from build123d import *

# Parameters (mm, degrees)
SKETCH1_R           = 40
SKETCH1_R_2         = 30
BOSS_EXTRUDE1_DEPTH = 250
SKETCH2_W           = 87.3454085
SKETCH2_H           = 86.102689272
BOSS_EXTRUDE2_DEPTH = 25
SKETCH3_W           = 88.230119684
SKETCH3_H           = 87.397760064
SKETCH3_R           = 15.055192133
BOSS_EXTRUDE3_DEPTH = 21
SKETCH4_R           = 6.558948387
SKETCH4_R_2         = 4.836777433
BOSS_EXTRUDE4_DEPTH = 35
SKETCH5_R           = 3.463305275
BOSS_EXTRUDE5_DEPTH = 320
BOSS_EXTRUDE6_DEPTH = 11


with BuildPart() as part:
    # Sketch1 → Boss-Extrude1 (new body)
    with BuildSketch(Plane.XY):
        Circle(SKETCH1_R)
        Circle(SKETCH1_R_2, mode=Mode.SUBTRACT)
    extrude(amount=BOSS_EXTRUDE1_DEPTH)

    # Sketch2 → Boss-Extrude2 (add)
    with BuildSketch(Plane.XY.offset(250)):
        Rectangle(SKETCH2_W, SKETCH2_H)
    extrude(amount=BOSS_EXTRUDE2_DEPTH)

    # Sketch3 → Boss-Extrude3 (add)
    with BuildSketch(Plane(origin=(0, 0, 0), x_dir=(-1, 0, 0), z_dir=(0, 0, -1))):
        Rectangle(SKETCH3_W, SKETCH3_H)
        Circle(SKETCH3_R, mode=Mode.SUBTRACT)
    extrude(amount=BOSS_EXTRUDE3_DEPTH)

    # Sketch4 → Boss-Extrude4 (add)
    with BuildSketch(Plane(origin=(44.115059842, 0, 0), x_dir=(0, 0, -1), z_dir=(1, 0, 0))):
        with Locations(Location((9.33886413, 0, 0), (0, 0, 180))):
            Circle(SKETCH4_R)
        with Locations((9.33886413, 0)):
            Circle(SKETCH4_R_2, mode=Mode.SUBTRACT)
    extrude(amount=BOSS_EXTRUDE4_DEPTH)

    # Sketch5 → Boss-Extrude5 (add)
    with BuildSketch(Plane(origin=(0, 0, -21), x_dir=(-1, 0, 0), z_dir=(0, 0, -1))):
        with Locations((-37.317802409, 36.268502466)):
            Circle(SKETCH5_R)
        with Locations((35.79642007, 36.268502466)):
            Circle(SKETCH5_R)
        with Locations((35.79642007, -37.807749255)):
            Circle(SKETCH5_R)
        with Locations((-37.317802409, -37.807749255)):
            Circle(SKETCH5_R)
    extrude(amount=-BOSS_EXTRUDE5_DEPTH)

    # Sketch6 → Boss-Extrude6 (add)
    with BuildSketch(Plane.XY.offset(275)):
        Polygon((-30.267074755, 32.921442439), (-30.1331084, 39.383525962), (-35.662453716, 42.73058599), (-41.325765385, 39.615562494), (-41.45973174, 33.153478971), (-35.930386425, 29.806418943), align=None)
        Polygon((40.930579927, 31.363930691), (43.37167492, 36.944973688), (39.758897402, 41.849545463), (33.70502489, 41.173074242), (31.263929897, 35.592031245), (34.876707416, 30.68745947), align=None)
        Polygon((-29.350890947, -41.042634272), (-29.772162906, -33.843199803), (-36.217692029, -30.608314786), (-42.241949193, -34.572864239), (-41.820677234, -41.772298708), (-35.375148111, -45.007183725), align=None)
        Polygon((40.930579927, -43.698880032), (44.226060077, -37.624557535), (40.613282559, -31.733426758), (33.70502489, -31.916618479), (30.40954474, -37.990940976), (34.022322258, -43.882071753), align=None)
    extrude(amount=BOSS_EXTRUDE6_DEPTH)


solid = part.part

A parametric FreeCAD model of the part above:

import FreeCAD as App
import Part
import Sketcher

V = App.Vector
Q = App.Units.Quantity

doc = App.newDocument("Part")
body = doc.addObject("PartDesign::Body", "Body")

# Sketch on XY plane
sketch1 = body.newObject("Sketcher::SketchObject", "Sketch")
sketch1.AttachmentSupport = (doc.getObject("XY_Plane"), [""])
sketch1.MapMode = "FlatFace"
sketch1.addGeometry(Part.Circle(V(0, 0, 0), V(0, 0, 1), 40), False)
sketch1.addGeometry(Part.Circle(V(0, 0, 0), V(0, 0, 1), 30), False)
sketch1.addConstraint(Sketcher.Constraint("Coincident", 0, 3, -1, 1))
sketch1.addConstraint(Sketcher.Constraint("Coincident", 1, 3, -1, 1))
sketch1.addConstraint(Sketcher.Constraint("Diameter", 0, Q("80 mm")))
sketch1.addConstraint(Sketcher.Constraint("Diameter", 1, Q("60 mm")))
pad1 = body.newObject("PartDesign::Pad", "Pad")
pad1.Profile = sketch1
pad1.Length = 250

# Sketch on XY plane
sketch2 = body.newObject("Sketcher::SketchObject", "Sketch001")
sketch2.AttachmentSupport = (doc.getObject("XY_Plane"), [""])
sketch2.MapMode = "FlatFace"
sketch2.AttachmentOffset = App.Placement(V(0, 0, 250), App.Rotation())
sketch2.addGeometry(Part.LineSegment(V(-44, 43, 0), V(-44, -43, 0)), False)
sketch2.addGeometry(Part.LineSegment(V(-44, -43, 0), V(44, -43, 0)), False)
sketch2.addGeometry(Part.LineSegment(V(44, -43, 0), V(44, 43, 0)), False)
sketch2.addGeometry(Part.LineSegment(V(44, 43, 0), V(-44, 43, 0)), False)
sketch2.addConstraint(Sketcher.Constraint("Coincident", 0, 2, 1, 1))
sketch2.addConstraint(Sketcher.Constraint("Coincident", 1, 2, 2, 1))
sketch2.addConstraint(Sketcher.Constraint("Coincident", 2, 2, 3, 1))
sketch2.addConstraint(Sketcher.Constraint("Coincident", 3, 2, 0, 1))
sketch2.addConstraint(Sketcher.Constraint("Vertical", 0))
sketch2.addConstraint(Sketcher.Constraint("Horizontal", 1))
sketch2.addConstraint(Sketcher.Constraint("Vertical", 2))
sketch2.addConstraint(Sketcher.Constraint("Horizontal", 3))
sketch2.addConstraint(Sketcher.Constraint("Symmetric", 0, 2, 2, 2, -1, 1))
sketch2.addConstraint(Sketcher.Constraint("DistanceX", 1, 1, 1, 2, Q("87.345409 mm")))
sketch2.addConstraint(Sketcher.Constraint("DistanceY", 0, 2, 0, 1, Q("86.102689 mm")))
pad2 = body.newObject("PartDesign::Pad", "Pad001")
pad2.Profile = sketch2
pad2.Length = 25

# Sketch on XY plane
sketch3 = body.newObject("Sketcher::SketchObject", "Sketch002")
sketch3.AttachmentSupport = (doc.getObject("XY_Plane"), [""])
sketch3.MapMode = "FlatFace"
sketch3.addGeometry(Part.LineSegment(V(44, 44, 0), V(44, -44, 0)), False)
sketch3.addGeometry(Part.LineSegment(V(44, -44, 0), V(-44, -44, 0)), False)
sketch3.addGeometry(Part.LineSegment(V(-44, -44, 0), V(-44, 44, 0)), False)
sketch3.addGeometry(Part.LineSegment(V(-44, 44, 0), V(44, 44, 0)), False)
sketch3.addGeometry(Part.Circle(V(0, 0, 0), V(0, 0, 1), 15), False)
sketch3.addConstraint(Sketcher.Constraint("Coincident", 0, 2, 1, 1))
sketch3.addConstraint(Sketcher.Constraint("Coincident", 1, 2, 2, 1))
sketch3.addConstraint(Sketcher.Constraint("Coincident", 2, 2, 3, 1))
sketch3.addConstraint(Sketcher.Constraint("Coincident", 3, 2, 0, 1))
sketch3.addConstraint(Sketcher.Constraint("Vertical", 0))
sketch3.addConstraint(Sketcher.Constraint("Horizontal", 1))
sketch3.addConstraint(Sketcher.Constraint("Vertical", 2))
sketch3.addConstraint(Sketcher.Constraint("Horizontal", 3))
sketch3.addConstraint(Sketcher.Constraint("Coincident", 4, 3, -1, 1))
sketch3.addConstraint(Sketcher.Constraint("Symmetric", 0, 2, 2, 2, -1, 1))
sketch3.addConstraint(Sketcher.Constraint("Diameter", 4, Q("30.110384 mm")))
sketch3.addConstraint(Sketcher.Constraint("DistanceX", 1, 2, 1, 1, Q("88.23012 mm")))
sketch3.addConstraint(Sketcher.Constraint("DistanceY", 0, 2, 0, 1, Q("87.39776 mm")))
pad3 = body.newObject("PartDesign::Pad", "Pad002")
pad3.Profile = sketch3
pad3.Length = 21
pad3.Reversed = True

# Sketch on YZ plane
sketch4 = body.newObject("Sketcher::SketchObject", "Sketch003")
sketch4.AttachmentSupport = (doc.getObject("YZ_Plane"), [""])
sketch4.MapMode = "FlatFace"
sketch4.AttachmentOffset = App.Placement(V(0, 0, 44.11506), App.Rotation())
sketch4.addGeometry(Part.Circle(V(0, -9.3, 0), V(0, 0, 1), 6.6), False)
sketch4.addGeometry(Part.Circle(V(0, -9.3, 0), V(0, 0, 1), 4.8), False)
sketch4.addConstraint(Sketcher.Constraint("Coincident", 1, 3, 0, 3))
sketch4.addConstraint(Sketcher.Constraint("PointOnObject", 0, 3, -2))
sketch4.addConstraint(Sketcher.Constraint("Diameter", 0, Q("13.117897 mm")))
sketch4.addConstraint(Sketcher.Constraint("Diameter", 1, Q("9.673555 mm")))
sketch4.addConstraint(Sketcher.Constraint("DistanceY", 0, 3, -1, 1, Q("9.338864 mm")))
pad4 = body.newObject("PartDesign::Pad", "Pad003")
pad4.Profile = sketch4
pad4.Length = 35

# Sketch on XY plane
sketch5 = body.newObject("Sketcher::SketchObject", "Sketch004")
sketch5.AttachmentSupport = (doc.getObject("XY_Plane"), [""])
sketch5.MapMode = "FlatFace"
sketch5.AttachmentOffset = App.Placement(V(0, 0, -21), App.Rotation())
sketch5.addGeometry(Part.Circle(V(37.3, 36.3, 0), V(0, 0, 1), 3.5), False)
sketch5.addGeometry(Part.Circle(V(-35.8, 36.3, 0), V(0, 0, 1), 3.5), False)
sketch5.addGeometry(Part.Circle(V(-35.8, -37.8, 0), V(0, 0, 1), 3.5), False)
sketch5.addGeometry(Part.Circle(V(37.3, -37.8, 0), V(0, 0, 1), 3.5), False)
sketch5.addConstraint(Sketcher.Constraint("Equal", 0, 1))
sketch5.addConstraint(Sketcher.Constraint("Equal", 1, 2))
sketch5.addConstraint(Sketcher.Constraint("Equal", 2, 3))
sketch5.addConstraint(Sketcher.Constraint("Horizontal", 0, 3, 1, 3))
sketch5.addConstraint(Sketcher.Constraint("Horizontal", 2, 3, 3, 3))
sketch5.addConstraint(Sketcher.Constraint("Vertical", 1, 3, 2, 3))
sketch5.addConstraint(Sketcher.Constraint("Vertical", 0, 3, 3, 3))
sketch5.addConstraint(Sketcher.Constraint("Diameter", 0, Q("6.926611 mm")))
sketch5.addConstraint(Sketcher.Constraint("DistanceX", 1, 3, -1, 1, Q("35.79642 mm")))
sketch5.addConstraint(Sketcher.Constraint("DistanceY", 2, 3, -1, 1, Q("37.807749 mm")))
sketch5.addConstraint(Sketcher.Constraint("DistanceY", 2, 3, 1, 3, Q("74.076252 mm")))
sketch5.addConstraint(Sketcher.Constraint("DistanceX", -1, 1, 0, 3, Q("37.317802 mm")))
pad5 = body.newObject("PartDesign::Pad", "Pad004")
pad5.Profile = sketch5
pad5.Length = 320

# Sketch on XY plane
sketch6 = body.newObject("Sketcher::SketchObject", "Sketch005")
sketch6.AttachmentSupport = (doc.getObject("XY_Plane"), [""])
sketch6.MapMode = "FlatFace"
sketch6.AttachmentOffset = App.Placement(V(0, 0, 275), App.Rotation())
sketch6.addGeometry(Part.LineSegment(V(-30, 33, 0), V(-30, 39, 0)), False)
sketch6.addGeometry(Part.LineSegment(V(-30, 39, 0), V(-36, 43, 0)), False)
sketch6.addGeometry(Part.LineSegment(V(-36, 43, 0), V(-41, 40, 0)), False)
sketch6.addGeometry(Part.LineSegment(V(-41, 40, 0), V(-41, 33, 0)), False)
sketch6.addGeometry(Part.LineSegment(V(-41, 33, 0), V(-36, 30, 0)), False)
sketch6.addGeometry(Part.LineSegment(V(-36, 30, 0), V(-30, 33, 0)), False)
sketch6.addGeometry(Part.LineSegment(V(41, 31, 0), V(43, 37, 0)), False)
sketch6.addGeometry(Part.LineSegment(V(43, 37, 0), V(40, 42, 0)), False)
sketch6.addGeometry(Part.LineSegment(V(40, 42, 0), V(34, 41, 0)), False)
sketch6.addGeometry(Part.LineSegment(V(34, 41, 0), V(31, 36, 0)), False)
sketch6.addGeometry(Part.LineSegment(V(31, 36, 0), V(35, 31, 0)), False)
sketch6.addGeometry(Part.LineSegment(V(35, 31, 0), V(41, 31, 0)), False)
sketch6.addGeometry(Part.LineSegment(V(-29, -41, 0), V(-30, -34, 0)), False)
sketch6.addGeometry(Part.LineSegment(V(-30, -34, 0), V(-36, -31, 0)), False)
sketch6.addGeometry(Part.LineSegment(V(-36, -31, 0), V(-42, -35, 0)), False)
sketch6.addGeometry(Part.LineSegment(V(-42, -35, 0), V(-42, -42, 0)), False)
sketch6.addGeometry(Part.LineSegment(V(-42, -42, 0), V(-35, -45, 0)), False)
sketch6.addGeometry(Part.LineSegment(V(-35, -45, 0), V(-29, -41, 0)), False)
sketch6.addGeometry(Part.LineSegment(V(41, -44, 0), V(44, -38, 0)), False)
sketch6.addGeometry(Part.LineSegment(V(44, -38, 0), V(41, -32, 0)), False)
sketch6.addGeometry(Part.LineSegment(V(41, -32, 0), V(34, -32, 0)), False)
sketch6.addGeometry(Part.LineSegment(V(34, -32, 0), V(30, -38, 0)), False)
sketch6.addGeometry(Part.LineSegment(V(30, -38, 0), V(34, -44, 0)), False)
sketch6.addGeometry(Part.LineSegment(V(34, -44, 0), V(41, -44, 0)), False)
sketch6.addConstraint(Sketcher.Constraint("Coincident", 0, 2, 1, 1))
sketch6.addConstraint(Sketcher.Constraint("Coincident", 1, 2, 2, 1))
sketch6.addConstraint(Sketcher.Constraint("Coincident", 2, 2, 3, 1))
sketch6.addConstraint(Sketcher.Constraint("Coincident", 3, 2, 4, 1))
sketch6.addConstraint(Sketcher.Constraint("Coincident", 4, 2, 5, 1))
sketch6.addConstraint(Sketcher.Constraint("Coincident", 5, 2, 0, 1))
sketch6.addConstraint(Sketcher.Constraint("Coincident", 6, 2, 7, 1))
sketch6.addConstraint(Sketcher.Constraint("Coincident", 7, 2, 8, 1))
sketch6.addConstraint(Sketcher.Constraint("Coincident", 8, 2, 9, 1))
sketch6.addConstraint(Sketcher.Constraint("Coincident", 9, 2, 10, 1))
sketch6.addConstraint(Sketcher.Constraint("Coincident", 10, 2, 11, 1))
sketch6.addConstraint(Sketcher.Constraint("Coincident", 11, 2, 6, 1))
sketch6.addConstraint(Sketcher.Constraint("Coincident", 12, 2, 13, 1))
sketch6.addConstraint(Sketcher.Constraint("Coincident", 13, 2, 14, 1))
sketch6.addConstraint(Sketcher.Constraint("Coincident", 14, 2, 15, 1))
sketch6.addConstraint(Sketcher.Constraint("Coincident", 15, 2, 16, 1))
sketch6.addConstraint(Sketcher.Constraint("Coincident", 16, 2, 17, 1))
sketch6.addConstraint(Sketcher.Constraint("Coincident", 17, 2, 12, 1))
sketch6.addConstraint(Sketcher.Constraint("Coincident", 18, 2, 19, 1))
sketch6.addConstraint(Sketcher.Constraint("Coincident", 19, 2, 20, 1))
sketch6.addConstraint(Sketcher.Constraint("Coincident", 20, 2, 21, 1))
sketch6.addConstraint(Sketcher.Constraint("Coincident", 21, 2, 22, 1))
sketch6.addConstraint(Sketcher.Constraint("Coincident", 22, 2, 23, 1))
sketch6.addConstraint(Sketcher.Constraint("Coincident", 23, 2, 18, 1))
sketch6.addConstraint(Sketcher.Constraint("Parallel", 0, 3))
sketch6.addConstraint(Sketcher.Constraint("Parallel", 1, 4))
sketch6.addConstraint(Sketcher.Constraint("Parallel", 2, 5))
sketch6.addConstraint(Sketcher.Constraint("Parallel", 6, 9))
sketch6.addConstraint(Sketcher.Constraint("Parallel", 7, 10))
sketch6.addConstraint(Sketcher.Constraint("Parallel", 8, 11))
sketch6.addConstraint(Sketcher.Constraint("Parallel", 12, 15))
sketch6.addConstraint(Sketcher.Constraint("Parallel", 13, 16))
sketch6.addConstraint(Sketcher.Constraint("Parallel", 14, 17))
sketch6.addConstraint(Sketcher.Constraint("Parallel", 18, 21))
sketch6.addConstraint(Sketcher.Constraint("Parallel", 19, 22))
sketch6.addConstraint(Sketcher.Constraint("Parallel", 20, 23))
sketch6.addConstraint(Sketcher.Constraint("Vertical", 8, 2, 20, 2))
sketch6.addConstraint(Sketcher.Constraint("Vertical", 11, 2, 23, 2))
sketch6.addConstraint(Sketcher.Constraint("Equal", 0, 1))
sketch6.addConstraint(Sketcher.Constraint("Equal", 1, 2))
sketch6.addConstraint(Sketcher.Constraint("Equal", 2, 3))
sketch6.addConstraint(Sketcher.Constraint("Equal", 6, 7))
sketch6.addConstraint(Sketcher.Constraint("Equal", 7, 8))
sketch6.addConstraint(Sketcher.Constraint("Equal", 8, 9))
sketch6.addConstraint(Sketcher.Constraint("Equal", 12, 13))
sketch6.addConstraint(Sketcher.Constraint("Equal", 13, 14))
sketch6.addConstraint(Sketcher.Constraint("Equal", 14, 15))
sketch6.addConstraint(Sketcher.Constraint("Equal", 18, 19))
sketch6.addConstraint(Sketcher.Constraint("Equal", 19, 20))
sketch6.addConstraint(Sketcher.Constraint("Equal", 20, 21))
sketch6.addConstraint(Sketcher.Constraint("DistanceY", 12, 2, -1, 1, Q("33.8432 mm")))
sketch6.addConstraint(Sketcher.Constraint("DistanceY", 15, 2, -1, 1, Q("41.772299 mm")))
sketch6.addConstraint(Sketcher.Constraint("DistanceY", 6, 2, 8, 2, Q("4.228101 mm")))
sketch6.addConstraint(Sketcher.Constraint("DistanceX", 5, 2, 8, 2, Q("63.9721 mm")))
sketch6.addConstraint(Sketcher.Constraint("DistanceX", 14, 2, 16, 2, Q("6.866801 mm")))
sketch6.addConstraint(Sketcher.Constraint("DistanceY", 19, 2, 6, 2, Q("68.6784 mm")))
sketch6.addConstraint(Sketcher.Constraint("Distance", 6, Q("6.09155 mm")))
sketch6.addConstraint(Sketcher.Constraint("Distance", 12, Q("7.211749 mm")))
sketch6.addConstraint(Sketcher.Constraint("DistanceX", 0, 2, -1, 1, Q("30.133108 mm")))
sketch6.addConstraint(Sketcher.Constraint("DistanceX", 3, 2, -1, 1, Q("41.459732 mm")))
sketch6.addConstraint(Sketcher.Constraint("DistanceY", -1, 1, 3, 2, Q("33.153479 mm")))
sketch6.addConstraint(Sketcher.Constraint("DistanceY", -1, 1, 4, 2, Q("29.806419 mm")))
sketch6.addConstraint(Sketcher.Constraint("DistanceX", -1, 1, 9, 2, Q("31.26393 mm")))
sketch6.addConstraint(Sketcher.Constraint("DistanceY", -1, 1, 9, 2, Q("35.592031 mm")))
sketch6.addConstraint(Sketcher.Constraint("DistanceY", -1, 1, 10, 2, Q("30.687459 mm")))
sketch6.addConstraint(Sketcher.Constraint("DistanceX", 14, 2, -1, 1, Q("42.241949 mm")))
sketch6.addConstraint(Sketcher.Constraint("DistanceX", 17, 2, -1, 1, Q("29.350891 mm")))
sketch6.addConstraint(Sketcher.Constraint("DistanceX", -1, 1, 18, 2, Q("44.22606 mm")))
sketch6.addConstraint(Sketcher.Constraint("DistanceY", 20, 2, -1, 1, Q("31.916618 mm")))
sketch6.addConstraint(Sketcher.Constraint("DistanceY", 21, 2, -1, 1, Q("37.990941 mm")))
sketch6.addConstraint(Sketcher.Constraint("DistanceY", 22, 2, -1, 1, Q("43.882072 mm")))
sketch6.addConstraint(Sketcher.Constraint("DistanceX", 2, 2, 1, 2, Q("5.663312 mm")))
pad6 = body.newObject("PartDesign::Pad", "Pad005")
pad6.Profile = sketch6
pad6.Length = 11

doc.recompute()
